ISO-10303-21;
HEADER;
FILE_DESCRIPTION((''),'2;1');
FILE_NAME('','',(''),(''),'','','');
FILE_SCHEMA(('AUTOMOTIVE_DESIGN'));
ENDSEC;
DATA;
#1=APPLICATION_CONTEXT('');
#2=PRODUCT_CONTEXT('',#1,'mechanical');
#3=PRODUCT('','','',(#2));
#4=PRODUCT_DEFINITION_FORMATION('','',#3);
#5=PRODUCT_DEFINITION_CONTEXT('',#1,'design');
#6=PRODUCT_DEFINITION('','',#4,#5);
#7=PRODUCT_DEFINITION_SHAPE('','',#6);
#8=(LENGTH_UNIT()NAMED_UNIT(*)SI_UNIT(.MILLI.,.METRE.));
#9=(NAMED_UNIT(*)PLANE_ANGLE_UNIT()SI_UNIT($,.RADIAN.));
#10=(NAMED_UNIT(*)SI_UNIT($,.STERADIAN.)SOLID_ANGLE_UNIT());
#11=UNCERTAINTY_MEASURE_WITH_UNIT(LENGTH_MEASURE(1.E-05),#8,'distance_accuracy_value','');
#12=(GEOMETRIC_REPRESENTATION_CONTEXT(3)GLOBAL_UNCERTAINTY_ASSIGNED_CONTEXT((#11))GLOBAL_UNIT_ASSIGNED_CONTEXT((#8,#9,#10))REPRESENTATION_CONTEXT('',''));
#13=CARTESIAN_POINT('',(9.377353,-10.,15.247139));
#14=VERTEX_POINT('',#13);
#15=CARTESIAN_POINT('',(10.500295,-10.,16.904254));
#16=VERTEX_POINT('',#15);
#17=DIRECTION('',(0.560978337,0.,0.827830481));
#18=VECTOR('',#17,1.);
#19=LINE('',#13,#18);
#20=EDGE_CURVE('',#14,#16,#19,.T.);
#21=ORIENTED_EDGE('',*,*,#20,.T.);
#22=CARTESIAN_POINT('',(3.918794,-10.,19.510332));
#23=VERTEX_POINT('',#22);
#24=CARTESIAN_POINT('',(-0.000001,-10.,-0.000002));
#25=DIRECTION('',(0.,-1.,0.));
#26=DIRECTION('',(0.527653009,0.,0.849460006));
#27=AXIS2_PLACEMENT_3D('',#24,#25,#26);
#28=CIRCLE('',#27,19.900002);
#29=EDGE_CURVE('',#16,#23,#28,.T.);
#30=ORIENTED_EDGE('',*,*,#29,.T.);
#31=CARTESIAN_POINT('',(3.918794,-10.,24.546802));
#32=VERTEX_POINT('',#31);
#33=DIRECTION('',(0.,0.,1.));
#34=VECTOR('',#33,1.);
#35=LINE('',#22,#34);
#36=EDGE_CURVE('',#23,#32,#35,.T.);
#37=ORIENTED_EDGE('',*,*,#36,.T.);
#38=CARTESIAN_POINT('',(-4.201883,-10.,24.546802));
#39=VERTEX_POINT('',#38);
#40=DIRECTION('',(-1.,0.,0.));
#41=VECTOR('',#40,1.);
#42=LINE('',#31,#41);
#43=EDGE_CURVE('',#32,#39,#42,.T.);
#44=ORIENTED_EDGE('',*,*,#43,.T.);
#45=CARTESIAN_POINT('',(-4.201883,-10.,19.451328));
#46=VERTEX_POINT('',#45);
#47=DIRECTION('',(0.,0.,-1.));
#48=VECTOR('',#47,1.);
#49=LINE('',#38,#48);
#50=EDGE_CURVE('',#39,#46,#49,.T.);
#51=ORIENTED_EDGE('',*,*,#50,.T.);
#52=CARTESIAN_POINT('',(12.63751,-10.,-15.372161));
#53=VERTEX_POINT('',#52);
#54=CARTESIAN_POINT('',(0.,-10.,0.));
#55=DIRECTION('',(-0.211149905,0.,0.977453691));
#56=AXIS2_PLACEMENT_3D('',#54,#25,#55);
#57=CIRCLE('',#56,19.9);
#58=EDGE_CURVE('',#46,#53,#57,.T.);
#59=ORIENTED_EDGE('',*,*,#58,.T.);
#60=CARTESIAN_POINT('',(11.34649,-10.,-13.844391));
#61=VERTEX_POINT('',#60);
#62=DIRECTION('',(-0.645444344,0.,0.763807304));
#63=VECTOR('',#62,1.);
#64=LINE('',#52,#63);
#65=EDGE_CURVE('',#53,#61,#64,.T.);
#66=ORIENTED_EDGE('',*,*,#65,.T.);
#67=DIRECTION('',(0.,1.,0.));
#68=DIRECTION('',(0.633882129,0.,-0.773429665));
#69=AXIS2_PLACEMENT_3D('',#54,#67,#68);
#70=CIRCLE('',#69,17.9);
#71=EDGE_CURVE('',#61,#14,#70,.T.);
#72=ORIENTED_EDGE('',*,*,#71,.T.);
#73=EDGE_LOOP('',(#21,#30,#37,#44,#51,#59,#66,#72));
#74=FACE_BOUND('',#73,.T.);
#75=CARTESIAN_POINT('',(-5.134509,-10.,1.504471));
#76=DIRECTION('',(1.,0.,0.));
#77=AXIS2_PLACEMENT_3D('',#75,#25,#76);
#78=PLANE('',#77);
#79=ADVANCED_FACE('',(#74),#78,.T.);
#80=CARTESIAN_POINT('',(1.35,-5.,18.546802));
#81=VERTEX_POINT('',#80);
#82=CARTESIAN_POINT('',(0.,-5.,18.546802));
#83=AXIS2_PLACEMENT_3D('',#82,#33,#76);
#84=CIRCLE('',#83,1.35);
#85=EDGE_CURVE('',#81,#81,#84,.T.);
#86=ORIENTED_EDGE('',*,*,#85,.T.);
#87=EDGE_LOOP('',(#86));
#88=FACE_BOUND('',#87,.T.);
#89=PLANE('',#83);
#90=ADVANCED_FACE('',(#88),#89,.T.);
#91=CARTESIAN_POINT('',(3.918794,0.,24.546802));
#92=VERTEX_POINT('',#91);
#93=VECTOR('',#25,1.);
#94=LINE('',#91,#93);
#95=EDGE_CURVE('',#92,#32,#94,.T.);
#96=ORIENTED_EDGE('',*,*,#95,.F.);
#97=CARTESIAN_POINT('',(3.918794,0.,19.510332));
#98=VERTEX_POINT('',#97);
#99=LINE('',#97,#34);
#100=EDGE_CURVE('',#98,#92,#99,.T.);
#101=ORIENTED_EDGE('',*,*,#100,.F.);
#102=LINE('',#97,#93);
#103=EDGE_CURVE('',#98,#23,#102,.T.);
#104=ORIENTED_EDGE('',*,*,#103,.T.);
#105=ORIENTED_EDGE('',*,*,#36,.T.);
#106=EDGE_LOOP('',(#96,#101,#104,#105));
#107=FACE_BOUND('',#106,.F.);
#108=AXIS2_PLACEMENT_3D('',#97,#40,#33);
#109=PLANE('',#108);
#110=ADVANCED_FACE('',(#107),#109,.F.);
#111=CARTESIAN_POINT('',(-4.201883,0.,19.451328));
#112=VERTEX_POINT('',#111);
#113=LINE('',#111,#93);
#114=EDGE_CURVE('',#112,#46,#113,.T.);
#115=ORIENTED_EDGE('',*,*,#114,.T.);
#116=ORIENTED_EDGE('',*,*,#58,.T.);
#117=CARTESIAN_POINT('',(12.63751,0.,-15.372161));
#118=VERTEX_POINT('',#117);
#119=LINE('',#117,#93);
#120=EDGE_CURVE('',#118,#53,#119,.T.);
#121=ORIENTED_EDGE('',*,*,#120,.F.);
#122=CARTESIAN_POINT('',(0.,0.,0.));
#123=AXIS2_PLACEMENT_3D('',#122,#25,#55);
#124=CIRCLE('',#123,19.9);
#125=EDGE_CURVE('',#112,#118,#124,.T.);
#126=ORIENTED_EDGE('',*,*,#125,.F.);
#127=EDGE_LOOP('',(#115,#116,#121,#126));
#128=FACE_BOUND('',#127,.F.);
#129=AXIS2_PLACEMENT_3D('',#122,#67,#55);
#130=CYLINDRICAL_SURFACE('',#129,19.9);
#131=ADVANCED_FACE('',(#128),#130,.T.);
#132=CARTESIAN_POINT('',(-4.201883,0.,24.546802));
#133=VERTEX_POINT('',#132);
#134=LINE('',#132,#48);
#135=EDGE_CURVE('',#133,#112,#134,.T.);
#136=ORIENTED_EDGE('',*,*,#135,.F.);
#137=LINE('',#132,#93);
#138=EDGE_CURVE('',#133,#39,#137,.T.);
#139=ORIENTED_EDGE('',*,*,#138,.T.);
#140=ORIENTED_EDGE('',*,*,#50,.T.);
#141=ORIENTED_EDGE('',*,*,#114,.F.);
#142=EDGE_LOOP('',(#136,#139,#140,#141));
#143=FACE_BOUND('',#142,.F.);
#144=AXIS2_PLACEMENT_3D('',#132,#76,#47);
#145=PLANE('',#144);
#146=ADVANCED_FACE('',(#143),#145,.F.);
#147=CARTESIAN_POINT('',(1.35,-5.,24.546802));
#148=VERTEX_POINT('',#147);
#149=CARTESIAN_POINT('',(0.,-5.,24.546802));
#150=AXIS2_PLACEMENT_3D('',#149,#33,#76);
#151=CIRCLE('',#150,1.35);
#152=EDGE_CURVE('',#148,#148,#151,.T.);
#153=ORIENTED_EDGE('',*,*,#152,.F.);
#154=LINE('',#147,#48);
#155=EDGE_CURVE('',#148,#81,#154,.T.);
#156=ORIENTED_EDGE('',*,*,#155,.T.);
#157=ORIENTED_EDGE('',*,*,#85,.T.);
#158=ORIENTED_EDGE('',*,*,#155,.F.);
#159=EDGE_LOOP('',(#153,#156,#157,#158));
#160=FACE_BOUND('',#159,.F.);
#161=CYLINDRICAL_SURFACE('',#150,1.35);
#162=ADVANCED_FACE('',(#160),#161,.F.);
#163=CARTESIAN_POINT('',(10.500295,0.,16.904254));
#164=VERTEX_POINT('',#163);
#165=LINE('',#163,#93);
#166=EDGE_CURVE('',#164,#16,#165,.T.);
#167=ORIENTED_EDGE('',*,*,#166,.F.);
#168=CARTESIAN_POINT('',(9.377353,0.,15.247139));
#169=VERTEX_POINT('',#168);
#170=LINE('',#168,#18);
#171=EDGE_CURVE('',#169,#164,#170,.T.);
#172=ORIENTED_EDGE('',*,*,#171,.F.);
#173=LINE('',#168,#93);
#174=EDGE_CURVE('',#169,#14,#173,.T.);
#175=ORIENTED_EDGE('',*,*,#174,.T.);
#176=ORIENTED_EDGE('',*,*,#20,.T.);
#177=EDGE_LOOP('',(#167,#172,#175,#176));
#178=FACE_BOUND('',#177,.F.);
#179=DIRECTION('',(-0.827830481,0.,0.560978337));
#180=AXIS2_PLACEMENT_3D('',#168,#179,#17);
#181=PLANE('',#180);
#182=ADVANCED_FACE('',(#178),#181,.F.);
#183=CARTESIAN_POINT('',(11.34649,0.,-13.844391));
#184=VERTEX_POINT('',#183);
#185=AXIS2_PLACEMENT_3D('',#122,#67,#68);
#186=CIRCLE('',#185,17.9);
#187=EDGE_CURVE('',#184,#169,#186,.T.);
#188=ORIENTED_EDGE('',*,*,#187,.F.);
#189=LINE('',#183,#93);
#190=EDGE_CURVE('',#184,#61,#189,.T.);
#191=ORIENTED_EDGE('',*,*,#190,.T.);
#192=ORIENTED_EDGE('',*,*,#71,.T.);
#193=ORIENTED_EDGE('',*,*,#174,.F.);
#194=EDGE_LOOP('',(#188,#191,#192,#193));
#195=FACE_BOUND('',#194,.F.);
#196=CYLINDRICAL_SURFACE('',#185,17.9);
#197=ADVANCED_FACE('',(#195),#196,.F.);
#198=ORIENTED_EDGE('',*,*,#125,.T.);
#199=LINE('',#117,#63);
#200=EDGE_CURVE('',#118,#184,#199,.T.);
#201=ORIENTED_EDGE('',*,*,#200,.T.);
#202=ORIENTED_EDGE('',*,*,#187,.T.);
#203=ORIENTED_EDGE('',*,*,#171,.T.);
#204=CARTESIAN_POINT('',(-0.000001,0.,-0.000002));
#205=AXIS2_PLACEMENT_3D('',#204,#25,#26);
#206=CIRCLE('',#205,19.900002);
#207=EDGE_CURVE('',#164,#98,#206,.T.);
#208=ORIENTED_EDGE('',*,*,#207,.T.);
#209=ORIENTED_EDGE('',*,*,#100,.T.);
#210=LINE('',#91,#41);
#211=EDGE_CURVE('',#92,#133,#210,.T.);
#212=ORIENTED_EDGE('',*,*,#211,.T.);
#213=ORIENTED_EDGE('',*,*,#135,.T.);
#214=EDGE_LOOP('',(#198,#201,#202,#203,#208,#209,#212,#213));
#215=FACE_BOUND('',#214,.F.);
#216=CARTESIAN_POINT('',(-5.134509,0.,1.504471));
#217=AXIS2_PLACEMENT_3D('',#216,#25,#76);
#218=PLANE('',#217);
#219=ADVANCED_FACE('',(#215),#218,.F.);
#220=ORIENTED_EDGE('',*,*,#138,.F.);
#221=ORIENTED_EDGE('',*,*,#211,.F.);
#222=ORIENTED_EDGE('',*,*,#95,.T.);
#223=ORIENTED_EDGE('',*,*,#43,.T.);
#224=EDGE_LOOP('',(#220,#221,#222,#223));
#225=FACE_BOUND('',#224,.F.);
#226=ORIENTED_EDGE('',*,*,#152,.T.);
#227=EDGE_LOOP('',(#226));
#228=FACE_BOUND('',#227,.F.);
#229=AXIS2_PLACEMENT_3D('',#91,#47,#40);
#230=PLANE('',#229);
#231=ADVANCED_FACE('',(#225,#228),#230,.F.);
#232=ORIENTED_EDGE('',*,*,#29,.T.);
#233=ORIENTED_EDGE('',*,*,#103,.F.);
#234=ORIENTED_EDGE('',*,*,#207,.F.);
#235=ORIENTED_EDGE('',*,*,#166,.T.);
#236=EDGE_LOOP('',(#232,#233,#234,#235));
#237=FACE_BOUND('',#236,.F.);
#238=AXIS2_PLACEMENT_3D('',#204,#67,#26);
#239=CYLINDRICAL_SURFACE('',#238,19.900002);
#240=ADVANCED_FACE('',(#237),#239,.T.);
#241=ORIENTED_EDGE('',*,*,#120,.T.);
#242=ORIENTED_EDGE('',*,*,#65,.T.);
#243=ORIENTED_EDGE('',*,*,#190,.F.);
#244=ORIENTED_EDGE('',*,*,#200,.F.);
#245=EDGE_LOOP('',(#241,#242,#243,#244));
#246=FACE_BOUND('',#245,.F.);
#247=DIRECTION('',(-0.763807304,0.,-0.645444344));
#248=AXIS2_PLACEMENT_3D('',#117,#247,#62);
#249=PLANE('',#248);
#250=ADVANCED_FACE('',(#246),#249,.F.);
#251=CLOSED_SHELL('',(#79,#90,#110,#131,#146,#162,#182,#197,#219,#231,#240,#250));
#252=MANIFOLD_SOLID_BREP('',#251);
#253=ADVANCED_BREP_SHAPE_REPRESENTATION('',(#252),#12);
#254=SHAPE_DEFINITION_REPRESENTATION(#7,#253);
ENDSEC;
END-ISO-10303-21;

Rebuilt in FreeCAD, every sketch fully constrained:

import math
import FreeCAD as App
import Part
import Sketcher
Q = App.Units.Quantity

doc = App.newDocument("Part")
body = doc.addObject("PartDesign::Body", "Body")

# Sketch on XZ plane
sketch1 = doc.addObject("Sketcher::SketchObject", "Sketch")
body.addObject(sketch1)
sketch1.AttachmentSupport = (doc.XZ_Plane, [""])
sketch1.MapMode = "FlatFace"
sketch1.addGeometry([
    Part.ArcOfCircle(Part.Circle(App.Vector(0, 0, 0), App.Vector(0, 0, 1), 17.9), math.radians(58.407496), math.radians(309.337123)),  # 0
    Part.LineSegment(App.Vector(9.377353, 15.247139, 0), App.Vector(10.500295, 16.904254, 0)),  # 1
    Part.ArcOfCircle(Part.Circle(App.Vector(-0.000001, -0.000002, 0), App.Vector(0, 0, 1), 19.900002), math.radians(58.152985), math.radians(78.642839)),  # 2
    Part.LineSegment(App.Vector(3.918794, 19.510332, 0), App.Vector(3.918794, 24.546802, 0)),  # 3
    Part.LineSegment(App.Vector(3.918794, 24.546802, 0), App.Vector(-4.201883, 24.546802, 0)),  # 4
    Part.LineSegment(App.Vector(-4.201883, 24.546802, 0), App.Vector(-4.201883, 19.451328, 0)),  # 5
    Part.ArcOfCircle(Part.Circle(App.Vector(0, 0, 0), App.Vector(0, 0, 1), 19.9), math.radians(102.189748), math.radians(309.423749)),  # 6
    Part.LineSegment(App.Vector(12.63751, -15.372161, 0), App.Vector(11.34649, -13.844391, 0)),  # 7
], False)
sketch1.addConstraint([
    Sketcher.Constraint("Coincident", 0, 1, 1, 1),
    Sketcher.Constraint("Coincident", 1, 2, 2, 1),
    Sketcher.Constraint("Coincident", 2, 2, 3, 1),
    Sketcher.Constraint("Coincident", 3, 2, 4, 1),
    Sketcher.Constraint("Coincident", 4, 2, 5, 1),
    Sketcher.Constraint("Coincident", 5, 2, 6, 1),
    Sketcher.Constraint("Coincident", 6, 2, 7, 1),
    Sketcher.Constraint("Coincident", 7, 2, 0, 2),
    Sketcher.Constraint("Vertical", 3),
    Sketcher.Constraint("Horizontal", 4),
    Sketcher.Constraint("Vertical", 5),
    Sketcher.Constraint("Coincident", 0, 3, -1, 1),
    Sketcher.Constraint("Coincident", 2, 3, -1, 1),
    Sketcher.Constraint("Coincident", 6, 3, -1, 1),
    Sketcher.Constraint("Radius", 0, Q("17.9 mm")),
    Sketcher.Constraint("Radius", 2, Q("19.900002 mm")),
    Sketcher.Constraint("Radius", 6, Q("19.9 mm")),
    Sketcher.Constraint("DistanceY", 3, 1, 3, 2, Q("5.03647 mm")),
    Sketcher.Constraint("DistanceY", -1, 1, 3, 2, Q("24.546802 mm")),
    Sketcher.Constraint("DistanceX", 2, 2, 1, 2, Q("6.581501 mm")),
    Sketcher.Constraint("DistanceY", 6, 2, 0, 1, Q("30.6193 mm")),
    Sketcher.Constraint("DistanceX", 4, 2, 4, 1, Q("8.120677 mm")),
    Sketcher.Constraint("DistanceY", -1, 1, 0, 1, Q("15.247139 mm")),
    Sketcher.Constraint("DistanceX", -1, 1, 7, 2, Q("11.34649 mm")),
])
pad1 = doc.addObject("PartDesign::Pad", "Pad")
body.addObject(pad1)
pad1.Profile = sketch1
pad1.Length = 10

# Sketch on XY plane
sketch2 = doc.addObject("Sketcher::SketchObject", "Sketch001")
body.addObject(sketch2)
sketch2.AttachmentSupport = (doc.XY_Plane, [""])
sketch2.MapMode = "FlatFace"
sketch2.AttachmentOffset = App.Placement(App.Vector(0, 0, 24.546802), App.Rotation())
sketch2.addGeometry(Part.Circle(App.Vector(0, -5, 0), App.Vector(0, 0, 1), 1.35), False)
sketch2.addConstraint([
    Sketcher.Constraint("PointOnObject", 0, 3, -2),
    Sketcher.Constraint("Diameter", 0, Q("2.7 mm")),
    Sketcher.Constraint("DistanceY", 0, 3, -1, 1, Q("5 mm")),
])
pocket1 = doc.addObject("PartDesign::Pocket", "Pocket")
body.addObject(pocket1)
pocket1.Profile = sketch2
pocket1.Length = 6

doc.recompute()
